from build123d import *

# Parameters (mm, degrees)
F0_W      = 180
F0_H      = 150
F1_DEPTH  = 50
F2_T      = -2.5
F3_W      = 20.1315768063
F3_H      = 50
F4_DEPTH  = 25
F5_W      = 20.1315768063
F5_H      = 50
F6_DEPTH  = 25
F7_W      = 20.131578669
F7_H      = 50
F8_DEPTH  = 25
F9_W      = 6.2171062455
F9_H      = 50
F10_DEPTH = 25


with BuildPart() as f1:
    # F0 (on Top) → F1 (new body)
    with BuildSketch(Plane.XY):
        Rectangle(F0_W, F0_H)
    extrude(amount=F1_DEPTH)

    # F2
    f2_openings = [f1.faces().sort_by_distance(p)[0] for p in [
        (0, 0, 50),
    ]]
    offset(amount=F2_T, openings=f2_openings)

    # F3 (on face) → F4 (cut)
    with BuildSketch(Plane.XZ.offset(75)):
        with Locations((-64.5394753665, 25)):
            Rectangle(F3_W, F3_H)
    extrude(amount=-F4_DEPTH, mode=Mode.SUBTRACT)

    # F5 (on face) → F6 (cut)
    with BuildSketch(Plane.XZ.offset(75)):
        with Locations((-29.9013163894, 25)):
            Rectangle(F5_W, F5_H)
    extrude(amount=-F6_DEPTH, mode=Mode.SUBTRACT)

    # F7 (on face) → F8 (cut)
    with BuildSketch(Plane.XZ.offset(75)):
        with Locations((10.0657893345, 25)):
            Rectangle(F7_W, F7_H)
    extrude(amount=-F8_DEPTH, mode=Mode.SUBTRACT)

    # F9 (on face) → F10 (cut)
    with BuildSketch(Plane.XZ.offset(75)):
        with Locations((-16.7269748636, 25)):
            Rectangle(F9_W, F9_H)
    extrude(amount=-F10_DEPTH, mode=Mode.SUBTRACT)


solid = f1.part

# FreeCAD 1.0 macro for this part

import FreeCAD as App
import Part
import Sketcher
from FreeCAD import Vector


def faces_at(feature, points):
    """Names of the faces that lie closest to the given points."""
    faces = feature.Shape.Faces
    near = lambda p: min(range(len(faces)), key=lambda i: faces[i].distToShape(Part.Vertex(*p))[0])
    return sorted({f"Face{near(p) + 1}" for p in points})


def add_polygon(sketch, points):
    """Adds a closed chain of lines whose ends are joined by coincident constraints."""
    first, n = sketch.GeometryCount, len(points)
    for a, b in zip(points, points[1:] + points[:1]):
        sketch.addGeometry(Part.LineSegment(App.Vector(*a, 0), App.Vector(*b, 0)), False)
    for i in range(n):
        sketch.addConstraint(Sketcher.Constraint("Coincident", first + i, 2, first + (i + 1) % n, 1))

doc = App.newDocument("Part")
body = doc.addObject("PartDesign::Body", "Body")

sketch1 = body.newObject("Sketcher::SketchObject", "Sketch")
sketch1.AttachmentSupport = (doc.getObject("XY_Plane"), [""])
sketch1.MapMode = "FlatFace"
add_polygon(sketch1, [(-90, 75), (-90, -75), (90, -75), (90, 75)])
sketch1.addConstraint([
    Sketcher.Constraint("Vertical", 0),
    Sketcher.Constraint("Horizontal", 1),
    Sketcher.Constraint("Vertical", 2),
    Sketcher.Constraint("Horizontal", 3),
    Sketcher.Constraint("Symmetric", 0, 2, 2, 2, -1, 1),
    Sketcher.Constraint("DistanceX", 1, 1, 1, 2, 180.0),
    Sketcher.Constraint("DistanceY", 0, 2, 0, 1, 150.0),
])
pad1 = body.newObject("PartDesign::Pad", "Pad")
pad1.Profile = sketch1
pad1.Length = 50
doc.recompute()

thickness = body.newObject("PartDesign::Thickness", "Thickness")
thickness.Base = (pad1, faces_at(pad1, [(0, 0, 50)]))
thickness.Value = 2.5
thickness.Reversed = True
thickness.Join = "Arc"

sketch2 = body.newObject("Sketcher::SketchObject", "Sketch001")
sketch2.AttachmentSupport = (doc.getObject("XZ_Plane"), [""])
sketch2.MapMode = "FlatFace"
sketch2.AttachmentOffset = App.Placement(Vector(0, 0, 75), App.Rotation())
add_polygon(sketch2, [(-74.605264, 50), (-74.605264, 0), (-54.473687, 0), (-54.473687, 50)])
sketch2.addConstraint([
    Sketcher.Constraint("Vertical", 0),
    Sketcher.Constraint("Horizontal", 1),
    Sketcher.Constraint("Vertical", 2),
    Sketcher.Constraint("Horizontal", 3),
    Sketcher.Constraint("PointOnObject", 0, 2, -1),
    Sketcher.Constraint("DistanceY", 0, 2, 0, 1, 50.0),
    Sketcher.Constraint("DistanceX", 1, 1, 1, 2, 20.131577),
    Sketcher.Constraint("DistanceX", 0, 2, -1, 1, 74.605264),
])
pocket1 = body.newObject("PartDesign::Pocket", "Pocket")
pocket1.Profile = sketch2
pocket1.Length = 25

sketch3 = body.newObject("Sketcher::SketchObject", "Sketch002")
sketch3.AttachmentSupport = (doc.getObject("XZ_Plane"), [""])
sketch3.MapMode = "FlatFace"
sketch3.AttachmentOffset = App.Placement(Vector(0, 0, 75), App.Rotation())
add_polygon(sketch3, [(-39.967105, 50), (-39.967105, 0), (-19.835528, 0), (-19.835528, 50)])
sketch3.addConstraint([
    Sketcher.Constraint("Vertical", 0),
    Sketcher.Constraint("Horizontal", 1),
    Sketcher.Constraint("Vertical", 2),
    Sketcher.Constraint("Horizontal", 3),
    Sketcher.Constraint("PointOnObject", 0, 2, -1),
    Sketcher.Constraint("DistanceY", 0, 2, 0, 1, 50.0),
    Sketcher.Constraint("DistanceX", 1, 1, 1, 2, 20.131577),
    Sketcher.Constraint("DistanceX", 0, 2, -1, 1, 39.967105),
])
pocket2 = body.newObject("PartDesign::Pocket", "Pocket001")
pocket2.Profile = sketch3
pocket2.Length = 25

sketch4 = body.newObject("Sketcher::SketchObject", "Sketch003")
sketch4.AttachmentSupport = (doc.getObject("XZ_Plane"), [""])
sketch4.MapMode = "FlatFace"
sketch4.AttachmentOffset = App.Placement(Vector(0, 0, 75), App.Rotation())
add_polygon(sketch4, [(0, 50), (0, 0), (20.131579, 0), (20.131579, 50)])
sketch4.addConstraint([
    Sketcher.Constraint("Vertical", 0),
    Sketcher.Constraint("Horizontal", 1),
    Sketcher.Constraint("Vertical", 2),
    Sketcher.Constraint("Horizontal", 3),
    Sketcher.Constraint("Coincident", 0, 2, -1, 1),
    Sketcher.Constraint("DistanceY", 0, 2, 0, 1, 50.0),
    Sketcher.Constraint("DistanceX", 1, 1, 1, 2, 20.131579),
])
pocket3 = body.newObject("PartDesign::Pocket", "Pocket002")
pocket3.Profile = sketch4
pocket3.Length = 25

sketch5 = body.newObject("Sketcher::SketchObject", "Sketch004")
sketch5.AttachmentSupport = (doc.getObject("XZ_Plane"), [""])
sketch5.MapMode = "FlatFace"
sketch5.AttachmentOffset = App.Placement(Vector(0, 0, 75), App.Rotation())
add_polygon(sketch5, [(-19.835528, 50), (-19.835528, 0), (-13.618422, 0), (-13.618422, 50)])
sketch5.addConstraint([
    Sketcher.Constraint("Vertical", 0),
    Sketcher.Constraint("Horizontal", 1),
    Sketcher.Constraint("Vertical", 2),
    Sketcher.Constraint("Horizontal", 3),
    Sketcher.Constraint("PointOnObject", 0, 2, -1),
    Sketcher.Constraint("DistanceY", 0, 2, 0, 1, 50.0),
    Sketcher.Constraint("DistanceX", 1, 1, 1, 2, 6.217106),
    Sketcher.Constraint("DistanceX", 1, 2, -1, 1, 13.618422),
])
pocket4 = body.newObject("PartDesign::Pocket", "Pocket003")
pocket4.Profile = sketch5
pocket4.Length = 25

doc.recompute()
